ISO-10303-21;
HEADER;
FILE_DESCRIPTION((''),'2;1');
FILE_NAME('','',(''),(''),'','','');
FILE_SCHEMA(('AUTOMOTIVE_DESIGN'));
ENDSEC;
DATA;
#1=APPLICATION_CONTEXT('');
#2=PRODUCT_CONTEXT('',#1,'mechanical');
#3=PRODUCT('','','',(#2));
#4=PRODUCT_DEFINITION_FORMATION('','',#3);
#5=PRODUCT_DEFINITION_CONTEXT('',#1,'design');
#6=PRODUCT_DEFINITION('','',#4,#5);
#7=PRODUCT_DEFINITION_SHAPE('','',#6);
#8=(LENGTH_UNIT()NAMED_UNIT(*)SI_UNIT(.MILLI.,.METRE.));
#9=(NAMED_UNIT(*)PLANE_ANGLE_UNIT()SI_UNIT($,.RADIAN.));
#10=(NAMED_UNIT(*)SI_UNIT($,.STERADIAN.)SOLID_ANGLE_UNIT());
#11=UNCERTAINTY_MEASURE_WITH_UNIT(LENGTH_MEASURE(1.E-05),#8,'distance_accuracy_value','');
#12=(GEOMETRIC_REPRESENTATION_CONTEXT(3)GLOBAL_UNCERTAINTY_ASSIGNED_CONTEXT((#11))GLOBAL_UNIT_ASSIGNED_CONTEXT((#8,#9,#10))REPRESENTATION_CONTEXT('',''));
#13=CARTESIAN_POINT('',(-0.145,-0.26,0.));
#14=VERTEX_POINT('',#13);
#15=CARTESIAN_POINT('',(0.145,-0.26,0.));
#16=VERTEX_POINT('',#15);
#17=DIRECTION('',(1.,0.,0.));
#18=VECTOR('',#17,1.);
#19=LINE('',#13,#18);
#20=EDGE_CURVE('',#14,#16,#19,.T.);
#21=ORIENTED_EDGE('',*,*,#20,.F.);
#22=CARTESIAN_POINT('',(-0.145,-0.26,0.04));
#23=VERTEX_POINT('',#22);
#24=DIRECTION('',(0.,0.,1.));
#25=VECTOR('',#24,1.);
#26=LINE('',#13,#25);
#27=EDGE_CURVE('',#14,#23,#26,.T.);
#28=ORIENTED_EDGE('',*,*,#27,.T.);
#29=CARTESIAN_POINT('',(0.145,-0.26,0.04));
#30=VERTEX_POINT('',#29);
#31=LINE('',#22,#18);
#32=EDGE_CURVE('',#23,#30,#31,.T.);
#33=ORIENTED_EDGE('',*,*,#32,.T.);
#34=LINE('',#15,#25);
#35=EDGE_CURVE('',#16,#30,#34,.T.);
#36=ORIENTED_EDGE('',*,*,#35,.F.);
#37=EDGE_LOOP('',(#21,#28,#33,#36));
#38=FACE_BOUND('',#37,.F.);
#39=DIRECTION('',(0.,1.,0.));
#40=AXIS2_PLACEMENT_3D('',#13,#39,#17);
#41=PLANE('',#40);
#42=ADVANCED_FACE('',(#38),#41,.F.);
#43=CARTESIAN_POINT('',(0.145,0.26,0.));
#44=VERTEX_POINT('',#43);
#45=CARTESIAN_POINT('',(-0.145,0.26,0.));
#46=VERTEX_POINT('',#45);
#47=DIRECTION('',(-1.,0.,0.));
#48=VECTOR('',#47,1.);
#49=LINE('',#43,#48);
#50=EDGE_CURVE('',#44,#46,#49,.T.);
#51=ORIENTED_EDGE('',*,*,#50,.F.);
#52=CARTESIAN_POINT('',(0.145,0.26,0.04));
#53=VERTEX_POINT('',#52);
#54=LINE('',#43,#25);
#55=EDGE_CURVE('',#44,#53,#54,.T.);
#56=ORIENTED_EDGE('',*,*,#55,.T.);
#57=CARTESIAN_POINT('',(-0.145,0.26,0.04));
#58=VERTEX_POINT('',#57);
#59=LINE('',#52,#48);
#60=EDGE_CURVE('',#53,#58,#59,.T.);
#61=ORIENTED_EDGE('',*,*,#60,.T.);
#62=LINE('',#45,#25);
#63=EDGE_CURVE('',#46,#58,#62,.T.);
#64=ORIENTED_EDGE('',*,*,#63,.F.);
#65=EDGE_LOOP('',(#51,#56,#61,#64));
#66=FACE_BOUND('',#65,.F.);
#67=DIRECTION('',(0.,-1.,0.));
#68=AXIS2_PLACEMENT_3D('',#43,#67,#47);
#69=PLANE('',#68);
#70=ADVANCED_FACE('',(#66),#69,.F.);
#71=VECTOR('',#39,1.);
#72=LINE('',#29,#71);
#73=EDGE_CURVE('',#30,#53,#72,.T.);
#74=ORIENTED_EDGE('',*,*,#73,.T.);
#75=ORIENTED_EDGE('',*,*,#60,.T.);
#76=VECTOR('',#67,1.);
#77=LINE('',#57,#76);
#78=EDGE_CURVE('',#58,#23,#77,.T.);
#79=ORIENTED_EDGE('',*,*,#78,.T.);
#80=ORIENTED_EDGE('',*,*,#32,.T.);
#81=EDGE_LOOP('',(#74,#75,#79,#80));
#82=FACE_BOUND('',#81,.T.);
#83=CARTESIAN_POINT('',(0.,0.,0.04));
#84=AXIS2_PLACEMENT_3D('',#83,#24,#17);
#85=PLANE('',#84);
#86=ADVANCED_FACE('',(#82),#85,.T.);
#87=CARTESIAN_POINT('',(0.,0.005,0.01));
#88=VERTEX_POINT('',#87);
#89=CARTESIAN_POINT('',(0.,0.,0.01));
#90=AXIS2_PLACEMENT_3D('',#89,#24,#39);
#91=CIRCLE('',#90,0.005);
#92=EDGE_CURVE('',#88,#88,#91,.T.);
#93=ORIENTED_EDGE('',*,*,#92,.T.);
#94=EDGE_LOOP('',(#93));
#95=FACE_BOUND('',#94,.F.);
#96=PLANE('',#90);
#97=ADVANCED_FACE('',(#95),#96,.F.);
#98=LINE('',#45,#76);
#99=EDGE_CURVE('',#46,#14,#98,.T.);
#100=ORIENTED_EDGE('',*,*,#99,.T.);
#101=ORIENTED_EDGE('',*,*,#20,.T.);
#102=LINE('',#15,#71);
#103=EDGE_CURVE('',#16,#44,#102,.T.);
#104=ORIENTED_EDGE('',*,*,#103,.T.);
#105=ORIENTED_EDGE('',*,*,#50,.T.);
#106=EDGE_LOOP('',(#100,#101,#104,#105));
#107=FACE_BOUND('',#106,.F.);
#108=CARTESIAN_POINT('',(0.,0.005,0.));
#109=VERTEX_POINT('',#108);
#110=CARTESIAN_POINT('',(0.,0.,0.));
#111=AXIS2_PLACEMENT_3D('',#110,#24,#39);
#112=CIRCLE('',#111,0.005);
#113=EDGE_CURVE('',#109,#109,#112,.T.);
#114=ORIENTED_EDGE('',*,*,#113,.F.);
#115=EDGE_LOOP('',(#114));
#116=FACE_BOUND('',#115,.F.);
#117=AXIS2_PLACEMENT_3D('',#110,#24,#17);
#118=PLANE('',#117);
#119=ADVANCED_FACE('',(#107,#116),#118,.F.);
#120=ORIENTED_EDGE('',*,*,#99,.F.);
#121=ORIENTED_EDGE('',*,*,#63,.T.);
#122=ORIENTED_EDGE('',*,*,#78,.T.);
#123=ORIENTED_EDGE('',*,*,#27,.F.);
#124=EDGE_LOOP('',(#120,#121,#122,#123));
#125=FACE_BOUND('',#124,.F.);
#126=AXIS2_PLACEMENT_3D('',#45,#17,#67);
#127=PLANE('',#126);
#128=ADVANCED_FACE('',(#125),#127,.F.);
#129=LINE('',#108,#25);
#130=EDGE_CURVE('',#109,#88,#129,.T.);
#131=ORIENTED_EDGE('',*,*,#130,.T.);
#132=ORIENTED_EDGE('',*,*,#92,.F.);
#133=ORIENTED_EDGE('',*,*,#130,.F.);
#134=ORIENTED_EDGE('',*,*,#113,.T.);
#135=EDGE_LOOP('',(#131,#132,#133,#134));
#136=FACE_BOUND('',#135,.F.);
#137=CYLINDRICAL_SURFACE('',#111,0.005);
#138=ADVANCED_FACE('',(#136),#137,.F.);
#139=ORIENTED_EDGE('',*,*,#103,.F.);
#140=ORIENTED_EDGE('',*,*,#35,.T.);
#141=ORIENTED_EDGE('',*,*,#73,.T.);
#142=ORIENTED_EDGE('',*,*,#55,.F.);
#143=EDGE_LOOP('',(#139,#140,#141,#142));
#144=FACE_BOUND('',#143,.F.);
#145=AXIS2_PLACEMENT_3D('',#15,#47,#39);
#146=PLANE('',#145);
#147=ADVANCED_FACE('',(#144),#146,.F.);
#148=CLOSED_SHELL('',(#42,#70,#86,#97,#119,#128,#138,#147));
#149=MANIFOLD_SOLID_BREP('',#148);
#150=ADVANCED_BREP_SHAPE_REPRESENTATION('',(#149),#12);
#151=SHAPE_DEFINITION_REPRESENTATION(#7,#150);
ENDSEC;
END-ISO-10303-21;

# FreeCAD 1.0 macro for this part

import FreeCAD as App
import Part
import Sketcher

V = App.Vector


def add_polygon(sketch, points):
    """Adds a closed chain of lines whose ends are joined by coincident constraints."""
    first, n = sketch.GeometryCount, len(points)
    for a, b in zip(points, points[1:] + points[:1]):
        sketch.addGeometry(Part.LineSegment(App.Vector(*a, 0), App.Vector(*b, 0)), False)
    for i in range(n):
        sketch.addConstraint(Sketcher.Constraint("Coincident", first + i, 2, first + (i + 1) % n, 1))

doc = App.newDocument("Part")
body = doc.addObject("PartDesign::Body", "Body")

sketch1 = doc.addObject("Sketcher::SketchObject", "Sketch")
body.addObject(sketch1)
sketch1.AttachmentSupport = (doc.XY_Plane, [""])
sketch1.MapMode = "FlatFace"
add_polygon(sketch1, [(-0.14, 0.26), (-0.14, -0.26), (0.14, -0.26), (0.14, 0.26)])
sketch1.addConstraint([
    Sketcher.Constraint("Vertical", 0),
    Sketcher.Constraint("Horizontal", 1),
    Sketcher.Constraint("Vertical", 2),
    Sketcher.Constraint("Horizontal", 3),
    Sketcher.Constraint("Symmetric", 0, 2, 2, 2, -1, 1),
    Sketcher.Constraint("DistanceX", 0, 2, -1, 1, 0.145),
    Sketcher.Constraint("DistanceY", 0, 2, 0, 1, 0.52),
])
pad1 = doc.addObject("PartDesign::Pad", "Pad")
body.addObject(pad1)
pad1.Profile = sketch1
pad1.Length = 0.04

sketch2 = doc.addObject("Sketcher::SketchObject", "Sketch001")
body.addObject(sketch2)
sketch2.AttachmentSupport = (doc.XY_Plane, [""])
sketch2.MapMode = "FlatFace"
sketch2.addGeometry(Part.Circle(V(0, 0, 0), V(0, 0, 1), 0.005), False)
sketch2.addConstraint([
    Sketcher.Constraint("Coincident", 0, 3, -1, 1),
    Sketcher.Constraint("Diameter", 0, 0.01),
])
doc.recompute()
hole = doc.addObject("PartDesign::Hole", "Hole")
body.addObject(hole)
hole.Profile = sketch2
hole.ThreadType = "None"
hole.Diameter = 0.01
hole.DepthType = "Dimension"
hole.Depth = 0.01
hole.DrillPoint = "Flat"
hole.Reversed = True

doc.recompute()
